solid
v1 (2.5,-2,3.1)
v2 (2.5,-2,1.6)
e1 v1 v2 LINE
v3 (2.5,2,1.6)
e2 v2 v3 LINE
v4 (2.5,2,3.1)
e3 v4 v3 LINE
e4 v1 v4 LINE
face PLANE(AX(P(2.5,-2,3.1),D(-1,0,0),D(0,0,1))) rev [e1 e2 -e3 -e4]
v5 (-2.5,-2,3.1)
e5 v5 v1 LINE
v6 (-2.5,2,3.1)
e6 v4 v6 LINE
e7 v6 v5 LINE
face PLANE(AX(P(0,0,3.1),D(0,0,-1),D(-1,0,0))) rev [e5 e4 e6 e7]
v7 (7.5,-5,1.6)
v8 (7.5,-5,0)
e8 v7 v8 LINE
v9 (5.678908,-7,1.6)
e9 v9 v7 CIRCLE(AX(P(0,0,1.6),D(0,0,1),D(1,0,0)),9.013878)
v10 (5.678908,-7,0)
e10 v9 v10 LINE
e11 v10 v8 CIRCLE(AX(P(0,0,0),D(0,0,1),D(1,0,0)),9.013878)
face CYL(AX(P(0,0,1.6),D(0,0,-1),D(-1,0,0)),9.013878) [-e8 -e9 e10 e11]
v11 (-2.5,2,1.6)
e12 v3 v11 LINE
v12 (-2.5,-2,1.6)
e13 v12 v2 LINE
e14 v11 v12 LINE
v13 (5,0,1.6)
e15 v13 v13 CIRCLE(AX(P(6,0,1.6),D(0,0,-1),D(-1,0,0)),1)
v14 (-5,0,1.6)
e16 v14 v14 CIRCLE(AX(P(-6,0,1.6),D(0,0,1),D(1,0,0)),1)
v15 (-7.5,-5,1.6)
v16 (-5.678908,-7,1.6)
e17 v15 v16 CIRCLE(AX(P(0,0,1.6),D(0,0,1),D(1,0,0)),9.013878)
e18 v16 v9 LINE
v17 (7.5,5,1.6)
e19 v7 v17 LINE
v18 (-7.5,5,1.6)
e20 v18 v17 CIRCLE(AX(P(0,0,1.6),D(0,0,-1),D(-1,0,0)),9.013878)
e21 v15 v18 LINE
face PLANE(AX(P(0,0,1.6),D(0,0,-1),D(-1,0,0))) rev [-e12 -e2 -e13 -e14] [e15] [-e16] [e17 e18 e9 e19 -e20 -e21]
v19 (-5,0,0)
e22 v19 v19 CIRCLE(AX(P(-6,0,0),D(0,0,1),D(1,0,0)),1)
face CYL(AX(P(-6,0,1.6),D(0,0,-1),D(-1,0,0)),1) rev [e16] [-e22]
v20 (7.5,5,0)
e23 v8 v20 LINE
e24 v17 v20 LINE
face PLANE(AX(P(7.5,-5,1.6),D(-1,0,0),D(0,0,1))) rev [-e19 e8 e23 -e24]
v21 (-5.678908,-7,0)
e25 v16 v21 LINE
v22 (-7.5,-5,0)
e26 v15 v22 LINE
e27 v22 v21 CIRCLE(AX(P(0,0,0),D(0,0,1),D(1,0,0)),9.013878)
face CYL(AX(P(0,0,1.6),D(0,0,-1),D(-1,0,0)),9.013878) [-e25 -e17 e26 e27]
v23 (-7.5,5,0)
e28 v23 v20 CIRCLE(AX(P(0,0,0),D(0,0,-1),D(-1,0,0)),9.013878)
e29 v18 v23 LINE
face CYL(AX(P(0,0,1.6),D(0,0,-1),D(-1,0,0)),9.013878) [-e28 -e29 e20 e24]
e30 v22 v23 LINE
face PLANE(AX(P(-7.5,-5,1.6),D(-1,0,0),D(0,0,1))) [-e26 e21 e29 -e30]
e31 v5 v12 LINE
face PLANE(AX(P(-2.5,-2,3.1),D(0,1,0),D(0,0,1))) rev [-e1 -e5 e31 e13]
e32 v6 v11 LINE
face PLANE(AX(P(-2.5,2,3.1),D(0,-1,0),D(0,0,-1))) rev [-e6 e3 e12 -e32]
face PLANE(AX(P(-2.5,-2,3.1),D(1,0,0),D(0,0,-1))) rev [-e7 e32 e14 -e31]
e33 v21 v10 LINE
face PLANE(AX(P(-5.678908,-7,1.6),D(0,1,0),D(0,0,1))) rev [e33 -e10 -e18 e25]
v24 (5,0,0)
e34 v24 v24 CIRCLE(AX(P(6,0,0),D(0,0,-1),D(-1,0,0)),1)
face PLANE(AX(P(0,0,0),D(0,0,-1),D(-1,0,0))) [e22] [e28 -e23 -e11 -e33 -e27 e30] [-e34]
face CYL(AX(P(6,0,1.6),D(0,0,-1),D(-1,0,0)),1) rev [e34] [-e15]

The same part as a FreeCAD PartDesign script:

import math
import FreeCAD as App
import Part
import Sketcher
Q = App.Units.Quantity


def add_polygon(sketch, points):
    """Adds a closed chain of lines whose ends are joined by coincident constraints."""
    first, n = sketch.GeometryCount, len(points)
    for a, b in zip(points, points[1:] + points[:1]):
        sketch.addGeometry(Part.LineSegment(App.Vector(*a, 0), App.Vector(*b, 0)), False)
    for i in range(n):
        sketch.addConstraint(Sketcher.Constraint("Coincident", first + i, 2, first + (i + 1) % n, 1))

doc = App.newDocument("Part")
params = doc.addObject("Spreadsheet::Sheet", "Params")
for row, (alias, value) in enumerate([
    ("sketch1_diameter", "2 mm"),
    ("sketch1_height", "10 mm"),
    ("pad1_length", "1.6 mm"),
    ("sketch2_width", "5 mm"),
    ("sketch2_height", "4 mm"),
    ("pad2_length", "1.5 mm"),
], start=1):
    params.set(f"A{row}", alias)
    params.set(f"B{row}", "=" + value)
    params.setAlias(f"B{row}", alias)

body = doc.addObject("PartDesign::Body", "Body")

sketch1 = doc.addObject("Sketcher::SketchObject", "Sketch")
body.addObject(sketch1)
sketch1.AttachmentSupport = (doc.XY_Plane, [""])
sketch1.MapMode = "FlatFace"
sketch1.addGeometry(Part.LineSegment(App.Vector(-5.7, -7, 0), App.Vector(5.7, -7, 0)), False)
sketch1.addGeometry(Part.ArcOfCircle(Part.Circle(App.Vector(0, 0, 0), App.Vector(0, 0, 1), 9), math.radians(-50.95), math.radians(-33.69)), False)
sketch1.addGeometry(Part.LineSegment(App.Vector(7.5, -5, 0), App.Vector(7.5, 5, 0)), False)
sketch1.addGeometry(Part.ArcOfCircle(Part.Circle(App.Vector(0, 0, 0), App.Vector(0, 0, 1), 9), math.radians(34), math.radians(146)), False)
sketch1.addGeometry(Part.LineSegment(App.Vector(-7.5, 5, 0), App.Vector(-7.5, -5, 0)), False)
sketch1.addGeometry(Part.ArcOfCircle(Part.Circle(App.Vector(0, 0, 0), App.Vector(0, 0, 1), 9), math.radians(-146.31), math.radians(-129.05)), False)
sketch1.addGeometry(Part.Circle(App.Vector(-6, 0, 0), App.Vector(0, 0, 1), 1), False)
sketch1.addGeometry(Part.Circle(App.Vector(6, 0, 0), App.Vector(0, 0, 1), 1), False)
sketch1.addConstraint(Sketcher.Constraint("Coincident", 0, 2, 1, 1))
sketch1.addConstraint(Sketcher.Constraint("Coincident", 1, 2, 2, 1))
sketch1.addConstraint(Sketcher.Constraint("Coincident", 2, 2, 3, 1))
sketch1.addConstraint(Sketcher.Constraint("Coincident", 3, 2, 4, 1))
sketch1.addConstraint(Sketcher.Constraint("Coincident", 4, 2, 5, 1))
sketch1.addConstraint(Sketcher.Constraint("Coincident", 5, 2, 0, 1))
sketch1.addConstraint(Sketcher.Constraint("Horizontal", 0))
sketch1.addConstraint(Sketcher.Constraint("Vertical", 2))
sketch1.addConstraint(Sketcher.Constraint("Vertical", 4))
sketch1.addConstraint(Sketcher.Constraint("Coincident", 1, 3, -1, 1))
sketch1.addConstraint(Sketcher.Constraint("Coincident", 3, 3, -1, 1))
sketch1.addConstraint(Sketcher.Constraint("Coincident", 5, 3, -1, 1))
sketch1.addConstraint(Sketcher.Constraint("Equal", 1, 3))
sketch1.addConstraint(Sketcher.Constraint("Equal", 3, 5))
sketch1.addConstraint(Sketcher.Constraint("Equal", 6, 7))
sketch1.addConstraint(Sketcher.Constraint("Symmetric", 6, 3, 7, 3, -1, 1))
sketch1.addConstraint(Sketcher.Constraint("PointOnObject", 6, 3, -1))
sketch1.addConstraint(Sketcher.Constraint("Horizontal", 2, 2, 3, 2))
sketch1.addConstraint(Sketcher.Constraint("Diameter", 6, Q("2 mm")))
sketch1.addConstraint(Sketcher.Constraint("DistanceY", 2, 1, 2, 2, Q("10 mm")))
sketch1.addConstraint(Sketcher.Constraint("DistanceX", 6, 3, -1, 1, Q("6 mm")))
sketch1.addConstraint(Sketcher.Constraint("DistanceY", 0, 2, -1, 1, Q("7 mm")))
sketch1.addConstraint(Sketcher.Constraint("DistanceX", -1, 1, 1, 2, Q("7.5 mm")))
sketch1.setExpression("Constraints[18]", "Params.sketch1_diameter")
sketch1.setExpression("Constraints[19]", "Params.sketch1_height")
pad1 = doc.addObject("PartDesign::Pad", "Pad")
body.addObject(pad1)
pad1.Profile = sketch1
pad1.setExpression("Length", "Params.pad1_length")

sketch2 = doc.addObject("Sketcher::SketchObject", "Sketch001")
body.addObject(sketch2)
sketch2.AttachmentSupport = (doc.XY_Plane, [""])
sketch2.MapMode = "FlatFace"
sketch2.AttachmentOffset = App.Placement(App.Vector(0, 0, 1.6), App.Rotation())
add_polygon(sketch2, [(-2.5, 2), (-2.5, -2), (2.5, -2), (2.5, 2)])
sketch2.addConstraint(Sketcher.Constraint("Vertical", 0))
sketch2.addConstraint(Sketcher.Constraint("Horizontal", 1))
sketch2.addConstraint(Sketcher.Constraint("Vertical", 2))
sketch2.addConstraint(Sketcher.Constraint("Horizontal", 3))
sketch2.addConstraint(Sketcher.Constraint("Symmetric", 0, 2, 2, 2, -1, 1))
sketch2.addConstraint(Sketcher.Constraint("DistanceX", 1, 1, 1, 2, Q("5 mm")))
sketch2.addConstraint(Sketcher.Constraint("DistanceY", 0, 2, 0, 1, Q("4 mm")))
sketch2.setExpression("Constraints[9]", "Params.sketch2_width")
sketch2.setExpression("Constraints[10]", "Params.sketch2_height")
pad2 = doc.addObject("PartDesign::Pad", "Pad001")
body.addObject(pad2)
pad2.Profile = sketch2
pad2.setExpression("Length", "Params.pad2_length")

doc.recompute()
